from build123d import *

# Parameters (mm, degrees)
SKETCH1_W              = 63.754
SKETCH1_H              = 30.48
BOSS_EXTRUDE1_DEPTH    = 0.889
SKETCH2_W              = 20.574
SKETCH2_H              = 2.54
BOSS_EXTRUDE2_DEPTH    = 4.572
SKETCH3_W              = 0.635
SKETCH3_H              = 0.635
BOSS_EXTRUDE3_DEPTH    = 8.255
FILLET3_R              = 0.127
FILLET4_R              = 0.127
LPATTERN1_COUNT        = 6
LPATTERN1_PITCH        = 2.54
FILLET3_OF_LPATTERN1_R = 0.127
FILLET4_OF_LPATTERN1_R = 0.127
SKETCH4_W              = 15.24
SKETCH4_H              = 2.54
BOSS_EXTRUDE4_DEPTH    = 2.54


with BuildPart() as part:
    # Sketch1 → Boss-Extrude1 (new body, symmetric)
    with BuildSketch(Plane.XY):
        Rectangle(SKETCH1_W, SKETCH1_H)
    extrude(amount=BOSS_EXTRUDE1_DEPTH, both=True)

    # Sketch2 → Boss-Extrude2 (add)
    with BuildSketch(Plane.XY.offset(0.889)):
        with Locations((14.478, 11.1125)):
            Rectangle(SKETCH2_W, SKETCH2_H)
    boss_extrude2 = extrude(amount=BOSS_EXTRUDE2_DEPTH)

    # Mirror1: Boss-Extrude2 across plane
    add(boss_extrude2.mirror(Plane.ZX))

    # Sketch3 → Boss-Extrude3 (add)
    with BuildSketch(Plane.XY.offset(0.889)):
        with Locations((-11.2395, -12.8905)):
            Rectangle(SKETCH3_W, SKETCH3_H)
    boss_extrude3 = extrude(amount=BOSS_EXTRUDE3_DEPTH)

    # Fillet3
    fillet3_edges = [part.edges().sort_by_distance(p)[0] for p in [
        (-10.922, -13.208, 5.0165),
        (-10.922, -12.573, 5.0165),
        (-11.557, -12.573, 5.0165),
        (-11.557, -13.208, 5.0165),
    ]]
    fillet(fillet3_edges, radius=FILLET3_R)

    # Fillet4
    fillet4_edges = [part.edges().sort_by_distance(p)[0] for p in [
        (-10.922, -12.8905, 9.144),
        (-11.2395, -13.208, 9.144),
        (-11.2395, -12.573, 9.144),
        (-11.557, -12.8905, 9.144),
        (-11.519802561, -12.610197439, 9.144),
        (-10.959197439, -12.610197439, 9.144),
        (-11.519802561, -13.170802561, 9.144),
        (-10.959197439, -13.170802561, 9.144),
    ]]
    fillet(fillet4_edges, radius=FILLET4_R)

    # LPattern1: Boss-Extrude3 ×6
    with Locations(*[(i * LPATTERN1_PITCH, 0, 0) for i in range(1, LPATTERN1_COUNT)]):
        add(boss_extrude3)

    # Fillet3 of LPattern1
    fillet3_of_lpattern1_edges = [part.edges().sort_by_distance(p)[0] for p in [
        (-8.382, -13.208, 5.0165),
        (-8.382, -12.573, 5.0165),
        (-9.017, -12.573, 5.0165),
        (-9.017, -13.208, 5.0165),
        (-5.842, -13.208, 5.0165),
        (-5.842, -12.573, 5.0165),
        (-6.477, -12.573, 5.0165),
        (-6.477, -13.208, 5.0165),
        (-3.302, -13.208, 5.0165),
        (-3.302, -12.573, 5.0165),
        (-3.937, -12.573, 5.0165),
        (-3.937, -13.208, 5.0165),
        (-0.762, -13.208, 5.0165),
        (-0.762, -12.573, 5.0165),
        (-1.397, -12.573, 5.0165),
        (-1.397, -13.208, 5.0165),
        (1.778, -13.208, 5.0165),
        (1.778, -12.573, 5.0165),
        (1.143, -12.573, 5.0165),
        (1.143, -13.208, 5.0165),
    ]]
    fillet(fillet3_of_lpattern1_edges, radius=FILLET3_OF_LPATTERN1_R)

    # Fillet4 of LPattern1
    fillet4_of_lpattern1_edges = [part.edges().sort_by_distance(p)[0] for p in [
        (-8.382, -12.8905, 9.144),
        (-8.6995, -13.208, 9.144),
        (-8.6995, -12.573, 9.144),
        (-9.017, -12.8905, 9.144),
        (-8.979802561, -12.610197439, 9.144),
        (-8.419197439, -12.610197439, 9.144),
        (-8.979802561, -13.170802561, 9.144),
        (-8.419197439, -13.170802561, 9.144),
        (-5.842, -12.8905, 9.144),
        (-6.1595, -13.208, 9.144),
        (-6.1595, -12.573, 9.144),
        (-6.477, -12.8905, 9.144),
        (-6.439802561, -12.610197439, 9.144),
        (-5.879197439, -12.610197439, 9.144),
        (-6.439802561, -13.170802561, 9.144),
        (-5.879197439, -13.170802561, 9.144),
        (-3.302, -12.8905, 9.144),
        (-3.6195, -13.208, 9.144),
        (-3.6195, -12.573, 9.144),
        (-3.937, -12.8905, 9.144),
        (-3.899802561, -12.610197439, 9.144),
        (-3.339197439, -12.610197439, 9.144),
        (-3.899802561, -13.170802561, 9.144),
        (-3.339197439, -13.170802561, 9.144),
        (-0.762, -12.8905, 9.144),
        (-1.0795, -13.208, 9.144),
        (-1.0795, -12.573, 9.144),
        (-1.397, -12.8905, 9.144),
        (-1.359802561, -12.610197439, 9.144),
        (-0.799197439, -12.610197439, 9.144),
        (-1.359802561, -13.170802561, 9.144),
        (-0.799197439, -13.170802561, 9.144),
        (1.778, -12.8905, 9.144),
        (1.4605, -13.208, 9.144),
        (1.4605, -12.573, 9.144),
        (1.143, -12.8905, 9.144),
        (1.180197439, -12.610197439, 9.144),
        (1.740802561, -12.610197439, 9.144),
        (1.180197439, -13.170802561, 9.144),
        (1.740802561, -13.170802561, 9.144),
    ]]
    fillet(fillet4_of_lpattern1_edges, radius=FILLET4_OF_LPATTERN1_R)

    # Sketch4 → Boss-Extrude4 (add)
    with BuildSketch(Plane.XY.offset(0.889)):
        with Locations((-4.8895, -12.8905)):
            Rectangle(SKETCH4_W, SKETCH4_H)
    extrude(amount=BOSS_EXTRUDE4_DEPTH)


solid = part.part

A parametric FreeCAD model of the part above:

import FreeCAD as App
import Part
import Sketcher

V = App.Vector
Q = App.Units.Quantity


def edges_at(feature, points):
    """Names of the edges that pass closest to the given points."""
    edges = feature.Shape.Edges
    near = lambda p: min(range(len(edges)), key=lambda i: edges[i].distToShape(Part.Vertex(*p))[0])
    return sorted({f"Edge{near(p) + 1}" for p in points})


def add_polygon(sketch, points):
    """Adds a closed chain of lines whose ends are joined by coincident constraints."""
    first, n = sketch.GeometryCount, len(points)
    for a, b in zip(points, points[1:] + points[:1]):
        sketch.addGeometry(Part.LineSegment(App.Vector(*a, 0), App.Vector(*b, 0)), False)
    for i in range(n):
        sketch.addConstraint(Sketcher.Constraint("Coincident", first + i, 2, first + (i + 1) % n, 1))

doc = App.newDocument("Part")
body = doc.addObject("PartDesign::Body", "Body")

sketch1 = body.newObject("Sketcher::SketchObject", "Sketch")
sketch1.AttachmentSupport = (doc.getObject("XY_Plane"), [""])
sketch1.MapMode = "FlatFace"
add_polygon(sketch1, [(-32, 15), (-32, -15), (32, -15), (32, 15)])
sketch1.addConstraint([
    Sketcher.Constraint("Vertical", 0),
    Sketcher.Constraint("Horizontal", 1),
    Sketcher.Constraint("Vertical", 2),
    Sketcher.Constraint("Horizontal", 3),
    Sketcher.Constraint("Symmetric", 0, 2, 2, 2, -1, 1),
    Sketcher.Constraint("DistanceY", 0, 2, 0, 1, Q("1.2 in")),
    Sketcher.Constraint("DistanceX", 1, 1, 1, 2, Q("2.51 in")),
])
pad1 = body.newObject("PartDesign::Pad", "Pad")
pad1.Profile = sketch1
pad1.Length = Q("0.07 in")
pad1.Midplane = True

sketch2 = body.newObject("Sketcher::SketchObject", "Sketch001")
sketch2.AttachmentSupport = (doc.getObject("XY_Plane"), [""])
sketch2.MapMode = "FlatFace"
sketch2.AttachmentOffset = App.Placement(V(0, 0, 0.035 * 25.4), App.Rotation())
add_polygon(sketch2, [(4.2, 12.4), (4.2, 9.8), (24.8, 9.8), (24.8, 12.4)])
sketch2.addConstraint([
    Sketcher.Constraint("Vertical", 0),
    Sketcher.Constraint("Horizontal", 1),
    Sketcher.Constraint("Vertical", 2),
    Sketcher.Constraint("Horizontal", 3),
    Sketcher.Constraint("DistanceY", 0, 2, 0, 1, Q("0.1 in")),
    Sketcher.Constraint("DistanceX", 1, 1, 1, 2, Q("0.81 in")),
    Sketcher.Constraint("DistanceX", -1, 1, 0, 2, Q("0.165 in")),
    Sketcher.Constraint("DistanceY", -1, 1, 0, 2, Q("0.3875 in")),
])
pad2 = body.newObject("PartDesign::Pad", "Pad001")
pad2.Profile = sketch2
pad2.Length = Q("0.18 in")
doc.recompute()

mirrored = body.newObject("PartDesign::Mirrored", "Mirrored")
mirrored.Originals = [pad2]
mirrored.MirrorPlane = (doc.getObject("XZ_Plane"), [""])
body.Tip = mirrored

sketch3 = body.newObject("Sketcher::SketchObject", "Sketch002")
sketch3.AttachmentSupport = (doc.getObject("XY_Plane"), [""])
sketch3.MapMode = "FlatFace"
sketch3.AttachmentOffset = App.Placement(V(0, 0, 0.035 * 25.4), App.Rotation())
add_polygon(sketch3, [(-11.6, -12.6), (-11.6, -13.2), (-10.9, -13.2), (-10.9, -12.6)])
sketch3.addConstraint([
    Sketcher.Constraint("Vertical", 0),
    Sketcher.Constraint("Horizontal", 1),
    Sketcher.Constraint("Vertical", 2),
    Sketcher.Constraint("Horizontal", 3),
    Sketcher.Constraint("Equal", 3, 0),
    Sketcher.Constraint("DistanceX", 1, 1, 1, 2, Q("0.025 in")),
    Sketcher.Constraint("DistanceY", 0, 2, -1, 1, Q("0.52 in")),
    Sketcher.Constraint("DistanceX", 1, 2, -1, 1, Q("0.43 in")),
])
pad3 = body.newObject("PartDesign::Pad", "Pad002")
pad3.Profile = sketch3
pad3.Length = Q("0.325 in")
doc.recompute()

fillet = body.newObject("PartDesign::Fillet", "Fillet")
fillet.Base = (pad3, edges_at(pad3, [
    (-10.922, -13.208, 5.016),
    (-10.922, -12.573, 5.016),
    (-11.557, -12.573, 5.016),
    (-11.557, -13.208, 5.016),
]))
fillet.Radius = Q("0.005 in")
doc.recompute()

fillet2 = body.newObject("PartDesign::Fillet", "Fillet001")
fillet2.Base = (fillet, edges_at(fillet, [
    (-10.922, -12.89, 9.144),
    (-11.239, -13.208, 9.144),
    (-11.239, -12.573, 9.144),
    (-11.557, -12.89, 9.144),
    (-11.52, -12.61, 9.144),
    (-10.959, -12.61, 9.144),
    (-11.52, -13.171, 9.144),
    (-10.959, -13.171, 9.144),
]))
fillet2.Radius = Q("0.005 in")
doc.recompute()

linearpattern = body.newObject("PartDesign::LinearPattern", "LinearPattern")
linearpattern.Originals = [pad3]
linearpattern.Direction = (doc.getObject("X_Axis"), [""])
linearpattern.Mode = "offset"
linearpattern.Offset = Q("0.1 in")
linearpattern.Occurrences = 6
body.Tip = linearpattern
doc.recompute()

fillet3 = body.newObject("PartDesign::Fillet", "Fillet002")
fillet3.Base = (linearpattern, edges_at(linearpattern, [
    (-8.382, -13.208, 5.016),
    (-8.382, -12.573, 5.016),
    (-9.017, -12.573, 5.016),
    (-9.017, -13.208, 5.016),
    (-5.842, -13.208, 5.016),
    (-5.842, -12.573, 5.016),
    (-6.477, -12.573, 5.016),
    (-6.477, -13.208, 5.016),
    (-3.302, -13.208, 5.016),
    (-3.302, -12.573, 5.016),
    (-3.937, -12.573, 5.016),
    (-3.937, -13.208, 5.016),
    (-0.762, -13.208, 5.016),
    (-0.762, -12.573, 5.016),
    (-1.397, -12.573, 5.016),
    (-1.397, -13.208, 5.016),
    (1.778, -13.208, 5.016),
    (1.778, -12.573, 5.016),
    (1.143, -12.573, 5.016),
    (1.143, -13.208, 5.016),
]))
fillet3.Radius = Q("0.005 in")
doc.recompute()

fillet4 = body.newObject("PartDesign::Fillet", "Fillet003")
fillet4.Base = (fillet3, edges_at(fillet3, [
    (-8.382, -12.89, 9.144),
    (-8.7, -13.208, 9.144),
    (-8.7, -12.573, 9.144),
    (-9.017, -12.89, 9.144),
    (-8.98, -12.61, 9.144),
    (-8.419, -12.61, 9.144),
    (-8.98, -13.171, 9.144),
    (-8.419, -13.171, 9.144),
    (-5.842, -12.89, 9.144),
    (-6.16, -13.208, 9.144),
    (-6.16, -12.573, 9.144),
    (-6.477, -12.89, 9.144),
    (-6.44, -12.61, 9.144),
    (-5.879, -12.61, 9.144),
    (-6.44, -13.171, 9.144),
    (-5.879, -13.171, 9.144),
    (-3.302, -12.89, 9.144),
    (-3.619, -13.208, 9.144),
    (-3.619, -12.573, 9.144),
    (-3.937, -12.89, 9.144),
    (-3.9, -12.61, 9.144),
    (-3.339, -12.61, 9.144),
    (-3.9, -13.171, 9.144),
    (-3.339, -13.171, 9.144),
    (-0.762, -12.89, 9.144),
    (-1.079, -13.208, 9.144),
    (-1.079, -12.573, 9.144),
    (-1.397, -12.89, 9.144),
    (-1.36, -12.61, 9.144),
    (-0.799, -12.61, 9.144),
    (-1.36, -13.171, 9.144),
    (-0.799, -13.171, 9.144),
    (1.778, -12.89, 9.144),
    (1.46, -13.208, 9.144),
    (1.46, -12.573, 9.144),
    (1.143, -12.89, 9.144),
    (1.18, -12.61, 9.144),
    (1.741, -12.61, 9.144),
    (1.18, -13.171, 9.144),
    (1.741, -13.171, 9.144),
]))
fillet4.Radius = Q("0.005 in")

sketch4 = body.newObject("Sketcher::SketchObject", "Sketch003")
sketch4.AttachmentSupport = (doc.getObject("XY_Plane"), [""])
sketch4.MapMode = "FlatFace"
sketch4.AttachmentOffset = App.Placement(V(0, 0, 0.035 * 25.4), App.Rotation())
add_polygon(sketch4, [(-12.5, -11.6), (-12.5, -14.2), (2.7, -14.2), (2.7, -11.6)])
sketch4.addConstraint([
    Sketcher.Constraint("Vertical", 0),
    Sketcher.Constraint("Horizontal", 1),
    Sketcher.Constraint("Vertical", 2),
    Sketcher.Constraint("Horizontal", 3),
    Sketcher.Constraint("DistanceX", 1, 1, 1, 2, Q("0.6 in")),
    Sketcher.Constraint("DistanceY", 0, 2, 0, 1, Q("0.1 in")),
    Sketcher.Constraint("DistanceX", 0, 2, -1, 1, Q("0.4925 in")),
    Sketcher.Constraint("DistanceY", 0, 2, -1, 1, Q("0.5575 in")),
])
pad4 = body.newObject("PartDesign::Pad", "Pad003")
pad4.Profile = sketch4
pad4.Length = Q("0.1 in")

doc.recompute()
